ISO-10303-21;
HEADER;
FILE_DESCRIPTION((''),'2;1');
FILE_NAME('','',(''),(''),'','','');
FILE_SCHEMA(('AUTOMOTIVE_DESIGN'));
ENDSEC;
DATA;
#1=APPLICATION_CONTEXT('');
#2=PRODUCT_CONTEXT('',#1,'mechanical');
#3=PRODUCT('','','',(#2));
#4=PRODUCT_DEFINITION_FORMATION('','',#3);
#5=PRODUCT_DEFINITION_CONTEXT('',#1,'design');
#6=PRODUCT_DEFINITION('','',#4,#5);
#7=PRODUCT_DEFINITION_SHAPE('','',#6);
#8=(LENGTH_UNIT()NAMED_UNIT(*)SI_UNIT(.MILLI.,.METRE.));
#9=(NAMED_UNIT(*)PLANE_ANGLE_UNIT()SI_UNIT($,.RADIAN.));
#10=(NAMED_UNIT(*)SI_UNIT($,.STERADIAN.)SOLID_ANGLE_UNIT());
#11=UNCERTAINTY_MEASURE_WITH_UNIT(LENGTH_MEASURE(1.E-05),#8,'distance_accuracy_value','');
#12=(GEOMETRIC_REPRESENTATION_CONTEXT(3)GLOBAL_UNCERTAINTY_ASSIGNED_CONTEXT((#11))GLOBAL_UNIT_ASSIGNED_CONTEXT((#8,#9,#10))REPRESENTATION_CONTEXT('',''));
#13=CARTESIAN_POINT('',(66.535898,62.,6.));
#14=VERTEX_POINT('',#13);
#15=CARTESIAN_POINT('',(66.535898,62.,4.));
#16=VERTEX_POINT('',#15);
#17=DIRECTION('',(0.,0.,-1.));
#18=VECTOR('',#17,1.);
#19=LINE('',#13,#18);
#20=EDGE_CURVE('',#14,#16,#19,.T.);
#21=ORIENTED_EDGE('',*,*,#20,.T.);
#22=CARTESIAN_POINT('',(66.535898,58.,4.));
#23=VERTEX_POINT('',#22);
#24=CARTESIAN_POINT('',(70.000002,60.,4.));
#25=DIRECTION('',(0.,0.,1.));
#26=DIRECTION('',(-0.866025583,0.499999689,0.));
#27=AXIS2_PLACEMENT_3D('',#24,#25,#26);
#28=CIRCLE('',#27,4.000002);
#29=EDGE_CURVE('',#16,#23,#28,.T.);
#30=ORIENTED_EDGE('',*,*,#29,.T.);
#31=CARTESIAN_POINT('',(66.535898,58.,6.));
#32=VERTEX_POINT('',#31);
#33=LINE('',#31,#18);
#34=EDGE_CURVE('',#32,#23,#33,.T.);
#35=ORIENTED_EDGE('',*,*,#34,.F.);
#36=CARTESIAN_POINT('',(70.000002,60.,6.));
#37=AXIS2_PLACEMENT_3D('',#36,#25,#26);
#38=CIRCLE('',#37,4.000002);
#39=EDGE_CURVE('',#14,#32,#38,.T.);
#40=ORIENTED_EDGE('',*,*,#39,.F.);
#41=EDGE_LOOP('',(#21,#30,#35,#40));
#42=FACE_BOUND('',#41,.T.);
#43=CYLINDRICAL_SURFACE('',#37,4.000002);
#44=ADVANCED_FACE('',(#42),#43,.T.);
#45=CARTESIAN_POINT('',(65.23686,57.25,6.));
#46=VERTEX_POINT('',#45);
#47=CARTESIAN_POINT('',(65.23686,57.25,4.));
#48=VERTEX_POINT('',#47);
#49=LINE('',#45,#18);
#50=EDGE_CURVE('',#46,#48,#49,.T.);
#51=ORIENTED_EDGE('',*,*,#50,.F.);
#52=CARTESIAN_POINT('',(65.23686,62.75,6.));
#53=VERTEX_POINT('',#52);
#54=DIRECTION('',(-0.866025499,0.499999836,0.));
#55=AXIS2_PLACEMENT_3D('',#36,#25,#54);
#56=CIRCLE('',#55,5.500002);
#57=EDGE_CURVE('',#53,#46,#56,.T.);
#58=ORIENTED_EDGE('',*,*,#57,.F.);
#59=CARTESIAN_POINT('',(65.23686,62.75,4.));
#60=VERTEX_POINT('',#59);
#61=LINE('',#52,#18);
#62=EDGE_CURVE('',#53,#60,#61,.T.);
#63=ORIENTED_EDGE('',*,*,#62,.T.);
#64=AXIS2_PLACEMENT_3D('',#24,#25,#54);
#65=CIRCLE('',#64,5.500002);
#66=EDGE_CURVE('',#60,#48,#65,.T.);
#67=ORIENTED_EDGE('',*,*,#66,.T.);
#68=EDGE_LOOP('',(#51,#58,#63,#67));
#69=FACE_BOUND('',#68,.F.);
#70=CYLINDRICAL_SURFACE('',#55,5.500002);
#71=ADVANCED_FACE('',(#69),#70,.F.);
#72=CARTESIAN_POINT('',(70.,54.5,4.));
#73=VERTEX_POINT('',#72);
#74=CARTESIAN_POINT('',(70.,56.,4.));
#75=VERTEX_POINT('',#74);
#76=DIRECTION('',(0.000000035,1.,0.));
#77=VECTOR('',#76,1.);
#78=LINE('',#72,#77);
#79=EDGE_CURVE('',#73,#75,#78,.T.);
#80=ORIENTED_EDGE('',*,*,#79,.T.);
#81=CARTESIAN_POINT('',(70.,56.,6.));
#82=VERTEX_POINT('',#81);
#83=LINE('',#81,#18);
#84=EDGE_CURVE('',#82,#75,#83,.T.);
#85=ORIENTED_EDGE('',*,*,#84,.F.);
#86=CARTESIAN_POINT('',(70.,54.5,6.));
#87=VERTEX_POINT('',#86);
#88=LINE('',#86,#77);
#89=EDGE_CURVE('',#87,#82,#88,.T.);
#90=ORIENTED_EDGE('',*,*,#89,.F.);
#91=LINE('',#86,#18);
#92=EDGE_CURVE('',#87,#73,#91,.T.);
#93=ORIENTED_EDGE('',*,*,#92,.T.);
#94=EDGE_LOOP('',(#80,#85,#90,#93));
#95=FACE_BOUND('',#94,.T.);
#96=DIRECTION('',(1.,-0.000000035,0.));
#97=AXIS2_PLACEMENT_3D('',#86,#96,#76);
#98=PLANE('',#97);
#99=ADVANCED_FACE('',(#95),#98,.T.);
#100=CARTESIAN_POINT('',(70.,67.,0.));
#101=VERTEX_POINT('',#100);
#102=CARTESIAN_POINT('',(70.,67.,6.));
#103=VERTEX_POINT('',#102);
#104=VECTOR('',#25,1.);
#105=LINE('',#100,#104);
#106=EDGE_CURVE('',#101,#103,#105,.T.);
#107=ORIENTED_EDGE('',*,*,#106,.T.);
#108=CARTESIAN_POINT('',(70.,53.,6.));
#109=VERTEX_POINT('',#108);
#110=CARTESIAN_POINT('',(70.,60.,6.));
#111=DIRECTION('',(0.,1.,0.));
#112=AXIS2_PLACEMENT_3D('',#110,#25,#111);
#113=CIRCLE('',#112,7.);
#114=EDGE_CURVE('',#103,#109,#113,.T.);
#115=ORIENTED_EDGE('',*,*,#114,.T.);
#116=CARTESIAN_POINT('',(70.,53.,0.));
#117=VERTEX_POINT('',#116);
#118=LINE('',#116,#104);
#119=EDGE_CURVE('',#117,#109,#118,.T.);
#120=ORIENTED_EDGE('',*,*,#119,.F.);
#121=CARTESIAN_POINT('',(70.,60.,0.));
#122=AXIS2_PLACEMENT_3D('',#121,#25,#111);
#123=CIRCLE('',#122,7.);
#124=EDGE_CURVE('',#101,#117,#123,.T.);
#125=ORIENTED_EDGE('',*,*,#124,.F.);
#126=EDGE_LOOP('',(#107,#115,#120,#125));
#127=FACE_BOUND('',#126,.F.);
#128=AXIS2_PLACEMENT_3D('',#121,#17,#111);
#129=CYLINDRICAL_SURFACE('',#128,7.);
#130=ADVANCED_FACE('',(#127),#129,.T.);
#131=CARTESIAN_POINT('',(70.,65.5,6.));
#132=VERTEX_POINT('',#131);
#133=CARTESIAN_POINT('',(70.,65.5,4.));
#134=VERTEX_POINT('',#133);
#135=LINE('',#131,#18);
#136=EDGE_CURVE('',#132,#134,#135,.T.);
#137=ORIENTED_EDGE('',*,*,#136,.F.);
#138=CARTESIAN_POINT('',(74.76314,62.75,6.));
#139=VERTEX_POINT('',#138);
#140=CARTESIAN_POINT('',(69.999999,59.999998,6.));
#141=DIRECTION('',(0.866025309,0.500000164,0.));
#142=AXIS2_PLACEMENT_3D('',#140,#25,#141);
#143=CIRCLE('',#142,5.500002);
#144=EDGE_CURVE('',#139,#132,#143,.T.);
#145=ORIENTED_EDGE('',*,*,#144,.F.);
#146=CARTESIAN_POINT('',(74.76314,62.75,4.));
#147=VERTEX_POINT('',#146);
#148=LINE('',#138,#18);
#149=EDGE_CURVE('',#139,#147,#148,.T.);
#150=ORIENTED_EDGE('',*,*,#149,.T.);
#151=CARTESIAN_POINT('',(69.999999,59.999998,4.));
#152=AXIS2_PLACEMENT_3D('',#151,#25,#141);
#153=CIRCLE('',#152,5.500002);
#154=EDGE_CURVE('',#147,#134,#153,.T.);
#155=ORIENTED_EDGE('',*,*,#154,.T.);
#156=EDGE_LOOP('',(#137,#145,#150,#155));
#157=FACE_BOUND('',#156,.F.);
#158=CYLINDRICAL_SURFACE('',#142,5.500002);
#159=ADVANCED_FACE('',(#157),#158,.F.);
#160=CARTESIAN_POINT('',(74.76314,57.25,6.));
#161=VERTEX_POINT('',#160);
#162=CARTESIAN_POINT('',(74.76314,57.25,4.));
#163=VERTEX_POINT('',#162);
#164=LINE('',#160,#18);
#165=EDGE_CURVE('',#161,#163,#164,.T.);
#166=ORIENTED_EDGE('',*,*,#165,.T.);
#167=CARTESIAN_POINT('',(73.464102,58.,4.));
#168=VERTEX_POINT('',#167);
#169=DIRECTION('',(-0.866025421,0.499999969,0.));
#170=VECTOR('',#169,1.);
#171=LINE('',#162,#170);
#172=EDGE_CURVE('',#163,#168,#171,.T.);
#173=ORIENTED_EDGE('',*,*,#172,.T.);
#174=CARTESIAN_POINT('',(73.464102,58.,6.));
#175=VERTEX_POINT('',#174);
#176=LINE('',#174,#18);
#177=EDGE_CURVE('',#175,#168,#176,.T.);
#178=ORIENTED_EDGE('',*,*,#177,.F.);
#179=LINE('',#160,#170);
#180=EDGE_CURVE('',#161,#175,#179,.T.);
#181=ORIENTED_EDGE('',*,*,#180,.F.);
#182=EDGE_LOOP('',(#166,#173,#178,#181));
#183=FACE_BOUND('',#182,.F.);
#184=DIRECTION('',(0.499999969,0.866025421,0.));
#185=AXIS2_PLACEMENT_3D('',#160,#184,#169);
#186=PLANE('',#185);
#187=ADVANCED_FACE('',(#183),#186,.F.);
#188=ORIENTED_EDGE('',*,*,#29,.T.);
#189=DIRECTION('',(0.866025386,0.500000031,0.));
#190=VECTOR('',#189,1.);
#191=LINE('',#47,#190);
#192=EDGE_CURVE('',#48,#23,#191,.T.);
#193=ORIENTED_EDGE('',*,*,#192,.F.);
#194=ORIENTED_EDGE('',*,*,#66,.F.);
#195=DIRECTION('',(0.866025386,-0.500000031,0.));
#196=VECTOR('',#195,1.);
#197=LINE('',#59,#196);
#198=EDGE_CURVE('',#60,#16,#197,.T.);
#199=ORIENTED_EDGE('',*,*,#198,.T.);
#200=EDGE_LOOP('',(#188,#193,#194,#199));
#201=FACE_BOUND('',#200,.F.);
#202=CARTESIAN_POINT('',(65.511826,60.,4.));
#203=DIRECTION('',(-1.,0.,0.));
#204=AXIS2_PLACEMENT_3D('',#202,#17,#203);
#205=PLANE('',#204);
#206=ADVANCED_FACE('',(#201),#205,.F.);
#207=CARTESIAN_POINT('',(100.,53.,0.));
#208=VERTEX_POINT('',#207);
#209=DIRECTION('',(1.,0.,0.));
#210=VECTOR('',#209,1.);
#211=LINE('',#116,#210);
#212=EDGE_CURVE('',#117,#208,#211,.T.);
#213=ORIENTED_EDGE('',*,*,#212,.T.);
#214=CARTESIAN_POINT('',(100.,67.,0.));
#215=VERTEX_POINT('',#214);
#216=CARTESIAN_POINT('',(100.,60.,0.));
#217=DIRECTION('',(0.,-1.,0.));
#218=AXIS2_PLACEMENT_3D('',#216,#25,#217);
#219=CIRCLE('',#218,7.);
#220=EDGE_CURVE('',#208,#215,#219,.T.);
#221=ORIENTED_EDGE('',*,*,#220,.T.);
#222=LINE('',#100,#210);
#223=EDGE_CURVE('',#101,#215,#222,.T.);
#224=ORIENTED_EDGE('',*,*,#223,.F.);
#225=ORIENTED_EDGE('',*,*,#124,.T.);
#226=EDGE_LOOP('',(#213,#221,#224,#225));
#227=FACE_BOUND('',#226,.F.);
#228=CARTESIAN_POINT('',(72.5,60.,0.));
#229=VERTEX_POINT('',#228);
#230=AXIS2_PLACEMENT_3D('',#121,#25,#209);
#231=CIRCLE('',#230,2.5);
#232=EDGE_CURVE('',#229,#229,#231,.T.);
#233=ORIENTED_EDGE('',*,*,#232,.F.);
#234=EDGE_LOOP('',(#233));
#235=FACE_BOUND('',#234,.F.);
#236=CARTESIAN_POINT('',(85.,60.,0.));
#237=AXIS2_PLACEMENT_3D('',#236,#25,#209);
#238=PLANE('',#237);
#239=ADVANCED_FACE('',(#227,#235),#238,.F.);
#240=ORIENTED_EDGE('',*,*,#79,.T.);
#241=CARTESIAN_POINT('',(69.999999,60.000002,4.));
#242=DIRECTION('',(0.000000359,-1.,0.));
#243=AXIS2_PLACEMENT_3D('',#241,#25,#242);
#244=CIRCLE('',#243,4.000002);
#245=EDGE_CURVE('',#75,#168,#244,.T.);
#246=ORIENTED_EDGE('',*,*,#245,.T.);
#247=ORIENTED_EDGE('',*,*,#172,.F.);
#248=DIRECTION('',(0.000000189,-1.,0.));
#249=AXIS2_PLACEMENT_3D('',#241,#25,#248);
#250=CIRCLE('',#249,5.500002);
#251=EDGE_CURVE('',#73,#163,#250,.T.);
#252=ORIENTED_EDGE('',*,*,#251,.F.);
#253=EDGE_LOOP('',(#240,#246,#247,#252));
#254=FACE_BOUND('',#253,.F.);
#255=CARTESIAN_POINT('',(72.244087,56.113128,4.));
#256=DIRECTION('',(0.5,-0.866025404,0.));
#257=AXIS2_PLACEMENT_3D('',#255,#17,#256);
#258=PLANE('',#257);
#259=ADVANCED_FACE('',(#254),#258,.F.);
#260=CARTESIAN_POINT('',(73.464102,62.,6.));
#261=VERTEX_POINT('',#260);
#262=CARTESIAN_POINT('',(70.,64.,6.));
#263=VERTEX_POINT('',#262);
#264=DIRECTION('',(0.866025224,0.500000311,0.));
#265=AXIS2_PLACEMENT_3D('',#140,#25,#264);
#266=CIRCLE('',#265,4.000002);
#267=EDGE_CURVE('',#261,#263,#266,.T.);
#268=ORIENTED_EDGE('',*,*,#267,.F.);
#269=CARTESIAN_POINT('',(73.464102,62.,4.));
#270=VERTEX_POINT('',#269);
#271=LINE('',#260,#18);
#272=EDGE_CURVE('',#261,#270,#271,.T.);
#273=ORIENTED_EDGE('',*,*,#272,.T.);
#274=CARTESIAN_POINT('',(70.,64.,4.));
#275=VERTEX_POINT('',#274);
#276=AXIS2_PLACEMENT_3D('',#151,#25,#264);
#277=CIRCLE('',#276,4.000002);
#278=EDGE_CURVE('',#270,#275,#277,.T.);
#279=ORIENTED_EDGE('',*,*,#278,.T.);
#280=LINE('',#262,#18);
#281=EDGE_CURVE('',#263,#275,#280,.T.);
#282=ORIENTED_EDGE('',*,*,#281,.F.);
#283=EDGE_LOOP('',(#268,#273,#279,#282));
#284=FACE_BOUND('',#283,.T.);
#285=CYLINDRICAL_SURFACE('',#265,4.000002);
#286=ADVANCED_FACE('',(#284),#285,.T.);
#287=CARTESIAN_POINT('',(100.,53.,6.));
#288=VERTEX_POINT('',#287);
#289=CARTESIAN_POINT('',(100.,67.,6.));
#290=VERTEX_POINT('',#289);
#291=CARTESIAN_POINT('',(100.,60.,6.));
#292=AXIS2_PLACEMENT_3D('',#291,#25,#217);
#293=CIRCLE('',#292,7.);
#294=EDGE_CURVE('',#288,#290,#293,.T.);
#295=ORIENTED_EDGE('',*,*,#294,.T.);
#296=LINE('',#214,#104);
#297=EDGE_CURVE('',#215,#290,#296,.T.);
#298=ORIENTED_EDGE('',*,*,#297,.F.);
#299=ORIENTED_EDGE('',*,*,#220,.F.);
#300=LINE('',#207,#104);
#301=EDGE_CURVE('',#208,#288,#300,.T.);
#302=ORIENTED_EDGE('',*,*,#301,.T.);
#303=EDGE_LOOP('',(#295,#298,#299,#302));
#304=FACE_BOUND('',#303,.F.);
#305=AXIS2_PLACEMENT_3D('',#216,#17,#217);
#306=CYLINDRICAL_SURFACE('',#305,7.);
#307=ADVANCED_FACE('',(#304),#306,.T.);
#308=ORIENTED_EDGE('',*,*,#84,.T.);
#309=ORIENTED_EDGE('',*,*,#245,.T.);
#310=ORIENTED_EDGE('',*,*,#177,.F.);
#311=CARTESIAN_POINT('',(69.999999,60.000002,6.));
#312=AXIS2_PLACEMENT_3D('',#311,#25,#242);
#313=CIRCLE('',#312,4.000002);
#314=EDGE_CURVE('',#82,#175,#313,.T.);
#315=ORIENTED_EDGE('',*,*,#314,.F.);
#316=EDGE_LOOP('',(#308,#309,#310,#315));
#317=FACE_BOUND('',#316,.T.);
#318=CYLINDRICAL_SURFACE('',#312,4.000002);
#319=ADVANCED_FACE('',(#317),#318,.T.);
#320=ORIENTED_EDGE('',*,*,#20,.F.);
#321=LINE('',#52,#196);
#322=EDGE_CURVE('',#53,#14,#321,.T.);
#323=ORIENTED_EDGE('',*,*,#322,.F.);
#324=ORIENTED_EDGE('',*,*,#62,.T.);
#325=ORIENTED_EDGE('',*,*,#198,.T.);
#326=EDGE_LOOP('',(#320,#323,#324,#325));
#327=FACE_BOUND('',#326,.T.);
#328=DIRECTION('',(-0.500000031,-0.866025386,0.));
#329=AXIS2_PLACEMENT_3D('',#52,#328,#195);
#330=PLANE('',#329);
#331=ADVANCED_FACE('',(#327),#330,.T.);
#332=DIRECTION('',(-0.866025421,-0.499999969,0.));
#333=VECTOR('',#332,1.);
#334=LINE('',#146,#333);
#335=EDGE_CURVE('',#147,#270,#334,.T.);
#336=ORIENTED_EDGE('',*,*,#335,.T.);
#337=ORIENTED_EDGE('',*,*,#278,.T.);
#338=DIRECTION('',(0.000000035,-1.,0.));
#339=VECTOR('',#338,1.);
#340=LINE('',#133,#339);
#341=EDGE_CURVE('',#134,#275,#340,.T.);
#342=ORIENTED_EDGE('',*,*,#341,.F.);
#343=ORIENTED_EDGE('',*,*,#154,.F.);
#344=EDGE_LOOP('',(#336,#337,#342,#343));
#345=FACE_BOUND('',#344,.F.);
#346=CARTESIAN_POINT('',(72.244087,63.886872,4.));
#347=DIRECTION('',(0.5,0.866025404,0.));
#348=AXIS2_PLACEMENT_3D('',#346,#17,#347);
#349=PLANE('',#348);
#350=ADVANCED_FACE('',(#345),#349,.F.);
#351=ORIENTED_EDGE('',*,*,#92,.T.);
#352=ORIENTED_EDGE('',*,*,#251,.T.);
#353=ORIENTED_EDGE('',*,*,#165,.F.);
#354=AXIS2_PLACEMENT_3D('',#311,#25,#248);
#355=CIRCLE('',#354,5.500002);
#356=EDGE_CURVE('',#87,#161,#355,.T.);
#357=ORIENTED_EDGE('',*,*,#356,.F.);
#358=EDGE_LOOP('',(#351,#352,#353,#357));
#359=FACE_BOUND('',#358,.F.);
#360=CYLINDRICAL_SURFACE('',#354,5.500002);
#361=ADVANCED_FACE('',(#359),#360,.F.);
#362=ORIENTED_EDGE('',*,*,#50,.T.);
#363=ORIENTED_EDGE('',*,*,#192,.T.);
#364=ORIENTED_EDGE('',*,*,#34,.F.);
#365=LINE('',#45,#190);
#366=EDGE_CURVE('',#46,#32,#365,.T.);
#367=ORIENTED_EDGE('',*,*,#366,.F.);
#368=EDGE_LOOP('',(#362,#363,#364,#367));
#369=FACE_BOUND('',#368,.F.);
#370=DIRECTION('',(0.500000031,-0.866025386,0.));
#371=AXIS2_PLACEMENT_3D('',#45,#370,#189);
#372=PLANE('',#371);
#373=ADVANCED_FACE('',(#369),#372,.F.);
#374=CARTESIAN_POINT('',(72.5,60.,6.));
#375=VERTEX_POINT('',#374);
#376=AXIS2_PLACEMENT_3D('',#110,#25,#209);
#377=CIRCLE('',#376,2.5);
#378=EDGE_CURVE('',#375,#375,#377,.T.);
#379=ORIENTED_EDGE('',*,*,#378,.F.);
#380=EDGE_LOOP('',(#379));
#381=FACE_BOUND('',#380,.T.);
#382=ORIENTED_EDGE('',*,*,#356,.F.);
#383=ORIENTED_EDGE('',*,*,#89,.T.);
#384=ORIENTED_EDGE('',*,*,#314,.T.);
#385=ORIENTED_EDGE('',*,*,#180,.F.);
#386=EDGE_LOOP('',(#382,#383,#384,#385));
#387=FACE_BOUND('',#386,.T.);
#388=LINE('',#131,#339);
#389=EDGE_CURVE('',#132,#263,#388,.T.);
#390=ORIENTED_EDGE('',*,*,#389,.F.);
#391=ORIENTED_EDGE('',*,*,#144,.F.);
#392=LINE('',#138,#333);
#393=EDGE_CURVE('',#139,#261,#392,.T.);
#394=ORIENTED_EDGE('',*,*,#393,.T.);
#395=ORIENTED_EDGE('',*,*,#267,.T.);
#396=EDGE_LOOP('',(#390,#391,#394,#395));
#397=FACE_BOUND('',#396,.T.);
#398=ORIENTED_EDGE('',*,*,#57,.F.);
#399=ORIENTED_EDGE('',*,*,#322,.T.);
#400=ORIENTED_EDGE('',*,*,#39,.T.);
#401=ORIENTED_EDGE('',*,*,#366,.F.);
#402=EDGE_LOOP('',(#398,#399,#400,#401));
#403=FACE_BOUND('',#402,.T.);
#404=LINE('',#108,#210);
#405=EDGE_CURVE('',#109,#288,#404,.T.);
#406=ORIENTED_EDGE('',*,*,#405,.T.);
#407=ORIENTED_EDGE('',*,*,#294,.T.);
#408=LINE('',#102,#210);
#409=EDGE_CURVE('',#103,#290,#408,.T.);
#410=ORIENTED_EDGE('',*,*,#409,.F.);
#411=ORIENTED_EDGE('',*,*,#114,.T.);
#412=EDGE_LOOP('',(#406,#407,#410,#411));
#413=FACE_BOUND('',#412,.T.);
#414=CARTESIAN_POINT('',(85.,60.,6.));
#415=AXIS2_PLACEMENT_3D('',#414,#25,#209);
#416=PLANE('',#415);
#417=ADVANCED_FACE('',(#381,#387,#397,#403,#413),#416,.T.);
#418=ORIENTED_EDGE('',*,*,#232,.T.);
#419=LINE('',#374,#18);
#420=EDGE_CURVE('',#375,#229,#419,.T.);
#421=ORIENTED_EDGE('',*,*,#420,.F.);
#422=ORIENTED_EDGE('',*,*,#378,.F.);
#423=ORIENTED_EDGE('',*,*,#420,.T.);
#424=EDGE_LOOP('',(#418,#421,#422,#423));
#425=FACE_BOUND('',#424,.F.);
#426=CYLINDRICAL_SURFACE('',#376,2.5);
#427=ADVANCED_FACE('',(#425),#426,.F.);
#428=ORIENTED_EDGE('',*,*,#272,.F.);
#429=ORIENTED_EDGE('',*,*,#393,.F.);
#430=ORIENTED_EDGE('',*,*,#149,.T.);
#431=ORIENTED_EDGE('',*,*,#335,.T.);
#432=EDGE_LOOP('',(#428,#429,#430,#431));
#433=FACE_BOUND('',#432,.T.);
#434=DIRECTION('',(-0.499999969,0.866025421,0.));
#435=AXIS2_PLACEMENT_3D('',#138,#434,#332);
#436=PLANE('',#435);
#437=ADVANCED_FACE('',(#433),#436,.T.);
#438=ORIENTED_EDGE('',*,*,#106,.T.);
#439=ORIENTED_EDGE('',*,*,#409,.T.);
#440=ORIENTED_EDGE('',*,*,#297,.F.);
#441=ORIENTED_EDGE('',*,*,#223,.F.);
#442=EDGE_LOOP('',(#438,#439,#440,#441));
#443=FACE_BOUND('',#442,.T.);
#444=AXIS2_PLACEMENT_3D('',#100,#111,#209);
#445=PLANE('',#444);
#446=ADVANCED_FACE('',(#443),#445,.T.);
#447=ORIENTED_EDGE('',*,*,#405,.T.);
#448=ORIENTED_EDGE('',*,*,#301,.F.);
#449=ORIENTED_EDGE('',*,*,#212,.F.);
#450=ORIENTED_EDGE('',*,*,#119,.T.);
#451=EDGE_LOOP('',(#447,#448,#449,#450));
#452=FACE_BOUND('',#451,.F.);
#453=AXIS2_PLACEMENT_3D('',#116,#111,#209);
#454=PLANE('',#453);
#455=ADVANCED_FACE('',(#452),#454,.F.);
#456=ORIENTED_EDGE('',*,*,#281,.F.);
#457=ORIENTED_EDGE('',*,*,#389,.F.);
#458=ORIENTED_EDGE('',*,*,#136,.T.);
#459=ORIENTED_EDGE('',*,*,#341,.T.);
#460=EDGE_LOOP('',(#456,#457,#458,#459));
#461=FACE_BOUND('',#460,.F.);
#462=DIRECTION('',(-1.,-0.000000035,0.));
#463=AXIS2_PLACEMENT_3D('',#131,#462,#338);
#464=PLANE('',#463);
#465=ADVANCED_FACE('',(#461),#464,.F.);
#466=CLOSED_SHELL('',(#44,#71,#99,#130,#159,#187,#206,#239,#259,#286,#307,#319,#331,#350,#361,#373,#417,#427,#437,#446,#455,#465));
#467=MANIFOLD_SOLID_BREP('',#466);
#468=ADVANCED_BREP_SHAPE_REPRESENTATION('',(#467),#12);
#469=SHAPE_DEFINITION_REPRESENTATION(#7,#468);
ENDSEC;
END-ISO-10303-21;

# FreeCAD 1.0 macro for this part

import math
import FreeCAD as App
import Part
import Sketcher

V = App.Vector
Q = App.Units.Quantity

doc = App.newDocument("Part")
body = doc.addObject("PartDesign::Body", "Body")

# Sketch on XY plane
sketch1 = doc.addObject("Sketcher::SketchObject", "Sketch")
body.addObject(sketch1)
sketch1.AttachmentSupport = (doc.XY_Plane, [""])
sketch1.MapMode = "FlatFace"
sketch1.addGeometry([
    Part.ArcOfCircle(Part.Circle(V(0, 0, 0), V(0, 0, 1), 7), math.radians(90), math.radians(270)),
    Part.LineSegment(V(0, -7, 0), V(30, -7, 0)),
    Part.ArcOfCircle(Part.Circle(V(30, 0, 0), V(0, 0, 1), 7), math.radians(-90), math.radians(90)),
    Part.LineSegment(V(30, 7, 0), V(0, 7, 0)),
], False)
sketch1.addConstraint([
    Sketcher.Constraint("Tangent", 0, 2, 1, 1),
    Sketcher.Constraint("Tangent", 1, 2, 2, 1),
    Sketcher.Constraint("Tangent", 2, 2, 3, 1),
    Sketcher.Constraint("Tangent", 3, 2, 0, 1),
    Sketcher.Constraint("Horizontal", 1),
    Sketcher.Constraint("Horizontal", 3),
    Sketcher.Constraint("Coincident", 0, 3, -1, 1),
    Sketcher.Constraint("Radius", 0, Q("7 mm")),
    Sketcher.Constraint("DistanceX", 1, 1, 1, 2, Q("30 mm")),
])
pad1 = doc.addObject("PartDesign::Pad", "Pad")
body.addObject(pad1)
pad1.Profile = sketch1
pad1.Length = 6

# Sketch on XY plane
sketch2 = doc.addObject("Sketcher::SketchObject", "Sketch001")
body.addObject(sketch2)
sketch2.AttachmentSupport = (doc.XY_Plane, [""])
sketch2.MapMode = "FlatFace"
sketch2.AttachmentOffset = App.Placement(V(0, 0, 6), App.Rotation())
sketch2.addGeometry(Part.Circle(V(0, 0, 0), V(0, 0, 1), 2.5), False)
sketch2.addConstraint([
    Sketcher.Constraint("Coincident", 0, 3, -1, 1),
    Sketcher.Constraint("Diameter", 0, Q("5 mm")),
])
pocket1 = doc.addObject("PartDesign::Pocket", "Pocket")
body.addObject(pocket1)
pocket1.Profile = sketch2
pocket1.Type = "ThroughAll"

# Sketch on XY plane
sketch3 = doc.addObject("Sketcher::SketchObject", "Sketch002")
body.addObject(sketch3)
sketch3.AttachmentSupport = (doc.XY_Plane, [""])
sketch3.MapMode = "FlatFace"
sketch3.AttachmentOffset = App.Placement(V(0, 0, 6), App.Rotation())
sketch3.addGeometry([
    Part.ArcOfCircle(Part.Circle(V(0, 0, 0), V(0, 0, 1), 4), math.radians(150), math.radians(210)),
    Part.LineSegment(V(-3.5, 2, 0), V(-4.8, 2.8, 0)),
    Part.ArcOfCircle(Part.Circle(V(0, 0, 0), V(0, 0, 1), 5.5), math.radians(150), math.radians(210)),
    Part.LineSegment(V(-4.8, -2.8, 0), V(-3.5, -2, 0)),
], False)
sketch3.addConstraint([
    Sketcher.Constraint("Coincident", 0, 1, 1, 1),
    Sketcher.Constraint("Coincident", 1, 2, 2, 1),
    Sketcher.Constraint("Coincident", 2, 2, 3, 1),
    Sketcher.Constraint("Coincident", 3, 2, 0, 2),
    Sketcher.Constraint("Coincident", 0, 3, -1, 1),
    Sketcher.Constraint("Coincident", 2, 3, -1, 1),
    Sketcher.Constraint("Vertical", 1, 2, 2, 2),
    Sketcher.Constraint("Vertical", 0, 1, 3, 2),
    Sketcher.Constraint("Radius", 2, Q("5.500002 mm")),
    Sketcher.Constraint("Angle", 1, Q("149.999998 deg")),
    Sketcher.Constraint("DistanceY", -1, 1, 0, 1, Q("2 mm")),
    Sketcher.Constraint("Distance", 1, Q("1.5 mm")),
])
pocket2 = doc.addObject("PartDesign::Pocket", "Pocket001")
body.addObject(pocket2)
pocket2.Profile = sketch3
pocket2.Length = 2
doc.recompute()

polarpattern = doc.addObject("PartDesign::PolarPattern", "PolarPattern")
body.addObject(polarpattern)
polarpattern.Originals = [pocket2]
polarpattern.Axis = (doc.Z_Axis, [""])
polarpattern.Angle = 360
polarpattern.Occurrences = 3
body.Tip = polarpattern
body2 = doc.addObject("PartDesign::Body", "Body001")
doc.recompute()

body.Placement = App.Placement(V(70, 60, 0), App.Rotation(V(0, 0, 1), 0))
boolean = doc.addObject("PartDesign::Boolean", "Boolean")
body2.addObject(boolean)
boolean.Type = "Fuse"
boolean.addObjects([body])

doc.recompute()
